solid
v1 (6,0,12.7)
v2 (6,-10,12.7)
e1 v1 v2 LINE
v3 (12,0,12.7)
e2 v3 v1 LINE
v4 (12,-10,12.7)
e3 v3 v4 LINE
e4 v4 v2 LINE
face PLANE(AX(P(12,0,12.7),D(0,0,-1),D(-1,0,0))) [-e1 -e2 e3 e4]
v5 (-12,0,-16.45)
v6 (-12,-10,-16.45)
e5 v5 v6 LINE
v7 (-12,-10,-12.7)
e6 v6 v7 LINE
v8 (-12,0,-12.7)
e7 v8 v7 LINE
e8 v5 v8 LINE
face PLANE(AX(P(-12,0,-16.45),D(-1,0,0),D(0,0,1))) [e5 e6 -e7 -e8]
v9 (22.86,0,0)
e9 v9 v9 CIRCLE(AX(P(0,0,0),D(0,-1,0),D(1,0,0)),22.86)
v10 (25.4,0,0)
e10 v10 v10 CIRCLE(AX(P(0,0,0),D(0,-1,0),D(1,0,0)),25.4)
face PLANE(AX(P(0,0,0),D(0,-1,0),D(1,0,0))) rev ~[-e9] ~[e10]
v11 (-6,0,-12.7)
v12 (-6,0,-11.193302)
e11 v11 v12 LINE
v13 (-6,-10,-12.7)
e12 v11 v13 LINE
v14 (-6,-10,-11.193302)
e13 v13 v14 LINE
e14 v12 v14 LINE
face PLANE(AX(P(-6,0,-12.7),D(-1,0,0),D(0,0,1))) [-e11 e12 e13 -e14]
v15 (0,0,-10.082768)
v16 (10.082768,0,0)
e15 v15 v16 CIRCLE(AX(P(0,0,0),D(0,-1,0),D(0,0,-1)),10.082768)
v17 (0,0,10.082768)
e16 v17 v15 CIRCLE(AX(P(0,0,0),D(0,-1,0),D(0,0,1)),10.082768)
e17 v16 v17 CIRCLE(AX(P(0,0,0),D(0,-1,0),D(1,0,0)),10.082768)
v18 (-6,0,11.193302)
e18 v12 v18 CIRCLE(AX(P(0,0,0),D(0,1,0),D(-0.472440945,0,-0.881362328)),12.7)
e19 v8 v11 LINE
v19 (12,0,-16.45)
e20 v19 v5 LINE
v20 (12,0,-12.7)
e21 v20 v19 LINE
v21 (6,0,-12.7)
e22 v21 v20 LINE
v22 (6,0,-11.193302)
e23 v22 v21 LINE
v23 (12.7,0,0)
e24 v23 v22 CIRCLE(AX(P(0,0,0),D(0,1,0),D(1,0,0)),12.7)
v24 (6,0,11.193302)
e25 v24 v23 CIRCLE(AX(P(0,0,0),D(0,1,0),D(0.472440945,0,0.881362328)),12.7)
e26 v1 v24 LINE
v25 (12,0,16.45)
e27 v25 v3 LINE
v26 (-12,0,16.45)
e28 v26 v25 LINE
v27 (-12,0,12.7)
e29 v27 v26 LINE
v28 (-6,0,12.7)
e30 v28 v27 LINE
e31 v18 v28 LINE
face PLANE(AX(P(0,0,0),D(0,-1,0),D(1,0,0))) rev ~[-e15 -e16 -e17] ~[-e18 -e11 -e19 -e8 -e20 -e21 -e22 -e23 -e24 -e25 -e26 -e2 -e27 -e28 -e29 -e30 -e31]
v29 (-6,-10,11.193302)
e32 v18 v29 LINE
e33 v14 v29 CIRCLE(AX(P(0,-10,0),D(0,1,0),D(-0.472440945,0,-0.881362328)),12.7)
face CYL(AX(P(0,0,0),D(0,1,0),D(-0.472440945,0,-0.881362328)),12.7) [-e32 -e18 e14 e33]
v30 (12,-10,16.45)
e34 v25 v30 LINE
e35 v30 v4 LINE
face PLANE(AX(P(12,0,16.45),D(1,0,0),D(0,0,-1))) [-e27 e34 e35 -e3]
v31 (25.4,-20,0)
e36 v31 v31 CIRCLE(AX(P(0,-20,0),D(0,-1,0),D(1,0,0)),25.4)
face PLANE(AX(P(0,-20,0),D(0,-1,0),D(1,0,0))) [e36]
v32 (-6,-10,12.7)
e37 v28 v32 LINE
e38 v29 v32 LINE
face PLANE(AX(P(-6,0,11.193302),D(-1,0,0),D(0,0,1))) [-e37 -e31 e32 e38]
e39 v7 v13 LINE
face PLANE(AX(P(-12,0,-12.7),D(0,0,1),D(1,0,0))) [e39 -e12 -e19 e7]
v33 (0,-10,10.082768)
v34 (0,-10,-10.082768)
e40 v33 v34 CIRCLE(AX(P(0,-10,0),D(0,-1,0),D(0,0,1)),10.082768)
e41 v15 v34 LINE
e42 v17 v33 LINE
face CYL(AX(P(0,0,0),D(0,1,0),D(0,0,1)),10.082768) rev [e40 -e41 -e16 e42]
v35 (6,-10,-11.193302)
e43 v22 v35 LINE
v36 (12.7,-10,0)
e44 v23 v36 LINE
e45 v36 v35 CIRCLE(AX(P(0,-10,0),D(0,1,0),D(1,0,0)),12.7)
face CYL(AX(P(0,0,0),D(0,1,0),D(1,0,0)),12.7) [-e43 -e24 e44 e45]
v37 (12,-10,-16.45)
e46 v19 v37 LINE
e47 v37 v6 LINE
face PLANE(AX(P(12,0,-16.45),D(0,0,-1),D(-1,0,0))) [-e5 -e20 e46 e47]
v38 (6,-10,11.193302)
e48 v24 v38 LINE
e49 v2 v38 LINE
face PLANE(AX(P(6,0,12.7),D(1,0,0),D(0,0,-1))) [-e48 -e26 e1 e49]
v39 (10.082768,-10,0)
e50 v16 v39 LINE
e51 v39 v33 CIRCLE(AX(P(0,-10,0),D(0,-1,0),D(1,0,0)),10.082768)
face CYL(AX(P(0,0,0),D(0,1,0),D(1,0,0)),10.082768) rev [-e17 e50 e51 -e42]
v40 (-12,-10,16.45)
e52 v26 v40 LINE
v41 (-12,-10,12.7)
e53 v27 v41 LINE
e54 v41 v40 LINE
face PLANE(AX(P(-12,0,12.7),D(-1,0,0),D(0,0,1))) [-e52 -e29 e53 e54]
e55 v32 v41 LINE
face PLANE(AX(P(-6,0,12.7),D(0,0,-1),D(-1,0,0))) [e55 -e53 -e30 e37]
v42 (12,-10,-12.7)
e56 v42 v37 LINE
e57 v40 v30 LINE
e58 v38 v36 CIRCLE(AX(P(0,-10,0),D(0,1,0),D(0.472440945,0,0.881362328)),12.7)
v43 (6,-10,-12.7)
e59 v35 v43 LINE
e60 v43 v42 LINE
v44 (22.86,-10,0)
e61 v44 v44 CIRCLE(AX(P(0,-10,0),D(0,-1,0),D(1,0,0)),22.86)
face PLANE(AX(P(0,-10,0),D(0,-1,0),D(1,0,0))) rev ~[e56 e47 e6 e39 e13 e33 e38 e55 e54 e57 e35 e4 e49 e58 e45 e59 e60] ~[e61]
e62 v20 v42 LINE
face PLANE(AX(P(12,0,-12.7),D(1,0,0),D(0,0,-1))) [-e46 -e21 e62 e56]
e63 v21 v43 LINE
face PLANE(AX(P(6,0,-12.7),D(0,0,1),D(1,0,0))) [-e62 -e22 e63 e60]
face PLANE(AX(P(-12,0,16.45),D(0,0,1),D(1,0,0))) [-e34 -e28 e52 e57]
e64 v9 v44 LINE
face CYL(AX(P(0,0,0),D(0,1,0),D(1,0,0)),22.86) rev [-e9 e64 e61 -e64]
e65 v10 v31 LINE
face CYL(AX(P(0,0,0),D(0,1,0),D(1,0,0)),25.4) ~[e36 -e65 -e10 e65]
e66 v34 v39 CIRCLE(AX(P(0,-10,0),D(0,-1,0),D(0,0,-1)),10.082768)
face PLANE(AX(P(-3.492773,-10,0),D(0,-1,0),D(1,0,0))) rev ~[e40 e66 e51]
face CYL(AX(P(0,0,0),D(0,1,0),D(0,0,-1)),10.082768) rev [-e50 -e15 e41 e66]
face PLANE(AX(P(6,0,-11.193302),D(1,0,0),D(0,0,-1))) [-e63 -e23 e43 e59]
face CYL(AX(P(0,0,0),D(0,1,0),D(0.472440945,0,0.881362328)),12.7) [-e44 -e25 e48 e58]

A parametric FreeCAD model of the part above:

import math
import FreeCAD as App
import Part
import Sketcher

doc = App.newDocument("Part")
body = doc.addObject("PartDesign::Body", "Body")

# Sketch on XZ plane
sketch1 = doc.addObject("Sketcher::SketchObject", "Sketch")
body.addObject(sketch1)
sketch1.AttachmentSupport = (doc.XZ_Plane, [""])
sketch1.MapMode = "FlatFace"
sketch1.addGeometry(Part.Circle(App.Vector(0, 0, 0), App.Vector(0, 0, 1), 25), False)
sketch1.addConstraint([
    Sketcher.Constraint("Coincident", 0, 3, -1, 1),
    Sketcher.Constraint("Diameter", 0, 50.8),
])
pad1 = doc.addObject("PartDesign::Pad", "Pad")
body.addObject(pad1)
pad1.Profile = sketch1
pad1.Length = 20

# Sketch on XZ plane
sketch2 = doc.addObject("Sketcher::SketchObject", "Sketch001")
body.addObject(sketch2)
sketch2.AttachmentSupport = (doc.XZ_Plane, [""])
sketch2.MapMode = "FlatFace"
sketch2.addGeometry([
    Part.Circle(App.Vector(0, 0, 0), App.Vector(0, 0, 1), 22.9),  # 0
    Part.LineSegment(App.Vector(6, 12.7, 0), App.Vector(6, 11.2, 0)),  # 1
    Part.ArcOfCircle(Part.Circle(App.Vector(0, 0, 0), App.Vector(0, 0, 1), 12.7), math.radians(0), math.radians(62)),  # 2
    Part.ArcOfCircle(Part.Circle(App.Vector(0, 0, 0), App.Vector(0, 0, 1), 12.7), math.radians(-62), math.radians(0)),  # 3
    Part.LineSegment(App.Vector(6, -11.2, 0), App.Vector(6, -12.7, 0)),  # 4
    Part.LineSegment(App.Vector(6, -12.7, 0), App.Vector(12, -12.7, 0)),  # 5
    Part.LineSegment(App.Vector(12, -12.7, 0), App.Vector(12, -16.4, 0)),  # 6
    Part.LineSegment(App.Vector(12, -16.4, 0), App.Vector(-12, -16.4, 0)),  # 7
    Part.LineSegment(App.Vector(-12, -16.4, 0), App.Vector(-12, -12.7, 0)),  # 8
    Part.LineSegment(App.Vector(-12, -12.7, 0), App.Vector(-6, -12.7, 0)),  # 9
    Part.LineSegment(App.Vector(-6, -12.7, 0), App.Vector(-6, -11.2, 0)),  # 10
    Part.ArcOfCircle(Part.Circle(App.Vector(0, 0, 0), App.Vector(0, 0, 1), 12.7), math.radians(118), math.radians(242)),  # 11
    Part.LineSegment(App.Vector(-6, 11.2, 0), App.Vector(-6, 12.7, 0)),  # 12
    Part.LineSegment(App.Vector(-6, 12.7, 0), App.Vector(-12, 12.7, 0)),  # 13
    Part.LineSegment(App.Vector(-12, 12.7, 0), App.Vector(-12, 16.4, 0)),  # 14
    Part.LineSegment(App.Vector(-12, 16.4, 0), App.Vector(12, 16.4, 0)),  # 15
    Part.LineSegment(App.Vector(12, 16.4, 0), App.Vector(12, 12.7, 0)),  # 16
    Part.LineSegment(App.Vector(12, 12.7, 0), App.Vector(6, 12.7, 0)),  # 17
    Part.ArcOfCircle(Part.Circle(App.Vector(0, 0, 0), App.Vector(0, 0, 1), 10.1), math.radians(90), math.radians(270)),  # 18
    Part.ArcOfCircle(Part.Circle(App.Vector(0, 0, 0), App.Vector(0, 0, 1), 10.1), math.radians(-90), math.radians(0)),  # 19
    Part.ArcOfCircle(Part.Circle(App.Vector(0, 0, 0), App.Vector(0, 0, 1), 10.1), math.radians(0), math.radians(90)),  # 20
], False)
sketch2.addConstraint([
    Sketcher.Constraint("Coincident", 1, 2, 2, 2),
    Sketcher.Constraint("Tangent", 2, 1, 3, 2),
    Sketcher.Constraint("Coincident", 3, 1, 4, 1),
    Sketcher.Constraint("Coincident", 4, 2, 5, 1),
    Sketcher.Constraint("Coincident", 5, 2, 6, 1),
    Sketcher.Constraint("Coincident", 6, 2, 7, 1),
    Sketcher.Constraint("Coincident", 7, 2, 8, 1),
    Sketcher.Constraint("Coincident", 8, 2, 9, 1),
    Sketcher.Constraint("Coincident", 9, 2, 10, 1),
    Sketcher.Constraint("Coincident", 10, 2, 11, 2),
    Sketcher.Constraint("Coincident", 11, 1, 12, 1),
    Sketcher.Constraint("Coincident", 12, 2, 13, 1),
    Sketcher.Constraint("Coincident", 13, 2, 14, 1),
    Sketcher.Constraint("Coincident", 14, 2, 15, 1),
    Sketcher.Constraint("Coincident", 15, 2, 16, 1),
    Sketcher.Constraint("Coincident", 16, 2, 17, 1),
    Sketcher.Constraint("Coincident", 17, 2, 1, 1),
    Sketcher.Constraint("Tangent", 18, 2, 19, 1),
    Sketcher.Constraint("Tangent", 19, 2, 20, 1),
    Sketcher.Constraint("Tangent", 20, 2, 18, 1),
    Sketcher.Constraint("Vertical", 1),
    Sketcher.Constraint("Vertical", 4),
    Sketcher.Constraint("Horizontal", 5),
    Sketcher.Constraint("Vertical", 6),
    Sketcher.Constraint("Horizontal", 7),
    Sketcher.Constraint("Vertical", 8),
    Sketcher.Constraint("Horizontal", 9),
    Sketcher.Constraint("Vertical", 10),
    Sketcher.Constraint("Vertical", 12),
    Sketcher.Constraint("Horizontal", 13),
    Sketcher.Constraint("Vertical", 14),
    Sketcher.Constraint("Horizontal", 15),
    Sketcher.Constraint("Vertical", 16),
    Sketcher.Constraint("Horizontal", 17),
    Sketcher.Constraint("Coincident", 0, 3, -1, 1),
    Sketcher.Constraint("Coincident", 2, 3, -1, 1),
    Sketcher.Constraint("Coincident", 11, 3, -1, 1),
    Sketcher.Constraint("Coincident", 18, 3, -1, 1),
    Sketcher.Constraint("Equal", 2, 3),
    Sketcher.Constraint("Equal", 3, 11),
    Sketcher.Constraint("Symmetric", 4, 2, 12, 2, -1, 1),
    Sketcher.Constraint("Symmetric", 6, 2, 14, 2, -1, 1),
    Sketcher.Constraint("Symmetric", 8, 2, 16, 2, -1, 1),
    Sketcher.Constraint("Symmetric", 5, 2, 8, 2, -2),
    Sketcher.Constraint("PointOnObject", 2, 1, -1),
    Sketcher.Constraint("PointOnObject", 18, 2, -2),
    Sketcher.Constraint("PointOnObject", 19, 2, -1),
    Sketcher.Constraint("PointOnObject", 20, 2, -2),
    Sketcher.Constraint("Horizontal", 3, 1, 10, 2),
    Sketcher.Constraint("Horizontal", 1, 2, 11, 1),
    Sketcher.Constraint("Radius", 2, 12.7),
    Sketcher.Constraint("Diameter", 0, 45.72),
    Sketcher.Constraint("DistanceX", 5, 1, 5, 2, 6.0),
    Sketcher.Constraint("DistanceX", 7, 2, 7, 1, 24.0),
    Sketcher.Constraint("DistanceY", 6, 2, 6, 1, 3.75),
    Sketcher.Constraint("DistanceY", 4, 2, -1, 1, 12.7),
    Sketcher.Constraint("Radius", 18, 10.082768),
])
pocket1 = doc.addObject("PartDesign::Pocket", "Pocket")
body.addObject(pocket1)
pocket1.Profile = sketch2
pocket1.Length = 10
pocket1.Reversed = True

doc.recompute()
